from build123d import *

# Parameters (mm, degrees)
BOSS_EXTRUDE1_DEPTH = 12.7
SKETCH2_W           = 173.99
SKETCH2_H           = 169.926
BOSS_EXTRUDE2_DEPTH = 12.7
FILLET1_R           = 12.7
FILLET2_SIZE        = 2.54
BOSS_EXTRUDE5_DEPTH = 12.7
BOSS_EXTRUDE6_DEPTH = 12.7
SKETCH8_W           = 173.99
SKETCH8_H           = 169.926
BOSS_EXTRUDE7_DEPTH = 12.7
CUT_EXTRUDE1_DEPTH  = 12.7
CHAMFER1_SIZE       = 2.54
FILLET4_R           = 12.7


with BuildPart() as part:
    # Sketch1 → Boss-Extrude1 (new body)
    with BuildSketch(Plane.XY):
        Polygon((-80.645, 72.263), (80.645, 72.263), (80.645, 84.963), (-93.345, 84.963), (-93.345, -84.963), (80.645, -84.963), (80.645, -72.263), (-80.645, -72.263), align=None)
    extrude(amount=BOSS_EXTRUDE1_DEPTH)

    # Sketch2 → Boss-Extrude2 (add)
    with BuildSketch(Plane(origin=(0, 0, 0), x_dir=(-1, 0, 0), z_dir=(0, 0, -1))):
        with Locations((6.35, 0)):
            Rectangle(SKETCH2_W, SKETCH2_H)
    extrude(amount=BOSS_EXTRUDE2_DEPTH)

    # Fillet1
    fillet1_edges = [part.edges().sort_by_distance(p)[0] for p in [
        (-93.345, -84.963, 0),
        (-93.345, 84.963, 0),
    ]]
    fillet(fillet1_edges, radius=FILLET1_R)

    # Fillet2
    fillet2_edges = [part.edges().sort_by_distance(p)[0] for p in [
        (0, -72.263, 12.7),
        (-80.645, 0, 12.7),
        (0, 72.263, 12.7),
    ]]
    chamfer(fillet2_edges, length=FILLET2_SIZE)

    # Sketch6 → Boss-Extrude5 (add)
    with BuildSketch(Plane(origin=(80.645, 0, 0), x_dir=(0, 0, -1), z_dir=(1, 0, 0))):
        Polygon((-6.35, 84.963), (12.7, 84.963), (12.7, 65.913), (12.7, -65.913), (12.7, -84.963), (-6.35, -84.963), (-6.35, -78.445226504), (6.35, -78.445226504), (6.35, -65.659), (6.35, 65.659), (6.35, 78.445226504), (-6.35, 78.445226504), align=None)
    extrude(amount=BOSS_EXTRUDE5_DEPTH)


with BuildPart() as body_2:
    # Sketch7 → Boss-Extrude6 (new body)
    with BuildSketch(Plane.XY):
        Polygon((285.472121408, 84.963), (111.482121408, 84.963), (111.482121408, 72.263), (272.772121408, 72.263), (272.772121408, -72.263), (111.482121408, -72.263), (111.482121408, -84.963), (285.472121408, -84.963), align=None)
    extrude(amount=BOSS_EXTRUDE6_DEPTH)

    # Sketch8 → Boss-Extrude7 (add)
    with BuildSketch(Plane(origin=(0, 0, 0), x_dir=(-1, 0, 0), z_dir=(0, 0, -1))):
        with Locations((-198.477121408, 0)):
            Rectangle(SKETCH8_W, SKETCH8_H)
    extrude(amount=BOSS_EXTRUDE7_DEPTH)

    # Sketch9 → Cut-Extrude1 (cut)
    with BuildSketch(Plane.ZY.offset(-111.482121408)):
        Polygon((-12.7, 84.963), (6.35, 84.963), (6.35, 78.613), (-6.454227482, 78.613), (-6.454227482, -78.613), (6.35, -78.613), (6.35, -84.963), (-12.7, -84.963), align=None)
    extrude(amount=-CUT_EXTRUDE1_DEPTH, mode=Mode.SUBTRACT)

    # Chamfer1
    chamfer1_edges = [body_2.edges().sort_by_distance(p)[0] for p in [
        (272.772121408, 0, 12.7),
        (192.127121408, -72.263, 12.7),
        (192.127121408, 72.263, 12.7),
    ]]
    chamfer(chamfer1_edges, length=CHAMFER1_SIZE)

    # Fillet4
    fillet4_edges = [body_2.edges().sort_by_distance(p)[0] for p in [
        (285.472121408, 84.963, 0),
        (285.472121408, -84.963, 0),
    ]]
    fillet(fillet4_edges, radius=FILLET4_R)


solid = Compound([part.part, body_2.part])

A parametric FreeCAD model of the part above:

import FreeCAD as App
import Part
import Sketcher
Q = App.Units.Quantity


def edges_at(feature, points):
    """Names of the edges that pass closest to the given points."""
    edges = feature.Shape.Edges
    near = lambda p: min(range(len(edges)), key=lambda i: edges[i].distToShape(Part.Vertex(*p))[0])
    return sorted({f"Edge{near(p) + 1}" for p in points})


def add_polygon(sketch, points):
    """Adds a closed chain of lines whose ends are joined by coincident constraints."""
    first, n = sketch.GeometryCount, len(points)
    for a, b in zip(points, points[1:] + points[:1]):
        sketch.addGeometry(Part.LineSegment(App.Vector(*a, 0), App.Vector(*b, 0)), False)
    for i in range(n):
        sketch.addConstraint(Sketcher.Constraint("Coincident", first + i, 2, first + (i + 1) % n, 1))

doc = App.newDocument("Part")
params = doc.addObject("Spreadsheet::Sheet", "Params")
for row, (alias, value) in enumerate([
    ("sketch1_height", "0.5 in"),
    ("sketch1_width", "6.35 in"),
    ("sketch1_width2", "6.85 in"),
    ("sketch1_height2", "6.69 in"),
    ("pad1_length", "0.5 in"),
    ("sketch2_width", "6.85 in"),
    ("sketch2_height", "6.69 in"),
    ("pad2_length", "0.5 in"),
    ("fillet_radius", "0.5 in"),
    ("chamfer_size", "0.1 in"),
    ("sketch3_height", "0.5 in"),
    ("sketch3_width", "6.69 in"),
    ("sketch3_height2", "0.75 in"),
    ("pad3_length", "0.5 in"),
    ("sketch4_height", "0.5 in"),
    ("sketch4_width", "6.85 in"),
    ("sketch4_width2", "6.35 in"),
    ("sketch4_height2", "5.69 in"),
    ("pad4_length", "0.5 in"),
    ("sketch5_width", "6.85 in"),
    ("sketch5_height", "6.69 in"),
    ("pad5_length", "0.5 in"),
    ("sketch6_width", "6.69 in"),
    ("sketch6_width2", "0.25 in"),
    ("sketch6_height", "0.75 in"),
    ("pocket1_length", "0.5 in"),
    ("chamfer2_size", "0.1 in"),
    ("fillet2_radius", "0.5 in"),
], start=1):
    params.set(f"A{row}", alias)
    params.set(f"B{row}", "=" + value)
    params.setAlias(f"B{row}", alias)

body = doc.addObject("PartDesign::Body", "Body")

sketch1 = body.newObject("Sketcher::SketchObject", "Sketch")
sketch1.AttachmentSupport = (doc.getObject("XY_Plane"), [""])
sketch1.MapMode = "FlatFace"
add_polygon(sketch1, [(-80.645, 72.263), (80.645, 72.263), (80.645, 84.963), (-93.345, 84.963), (-93.345, -84.963), (80.645, -84.963), (80.645, -72.263), (-80.645, -72.263)])
sketch1.addConstraint(Sketcher.Constraint("Horizontal", 0))
sketch1.addConstraint(Sketcher.Constraint("Vertical", 1))
sketch1.addConstraint(Sketcher.Constraint("Horizontal", 2))
sketch1.addConstraint(Sketcher.Constraint("Vertical", 3))
sketch1.addConstraint(Sketcher.Constraint("Horizontal", 4))
sketch1.addConstraint(Sketcher.Constraint("Vertical", 5))
sketch1.addConstraint(Sketcher.Constraint("Horizontal", 6))
sketch1.addConstraint(Sketcher.Constraint("Vertical", 7))
sketch1.addConstraint(Sketcher.Constraint("Symmetric", 0, 2, 6, 2, -1, 1))
sketch1.addConstraint(Sketcher.Constraint("Symmetric", 1, 2, 4, 2, -1))
sketch1.addConstraint(Sketcher.Constraint("DistanceY", 1, 1, 1, 2, Q("0.5 in")))
sketch1.addConstraint(Sketcher.Constraint("DistanceX", 0, 1, 0, 2, Q("6.35 in")))
sketch1.addConstraint(Sketcher.Constraint("DistanceX", 2, 2, 2, 1, Q("6.85 in")))
sketch1.addConstraint(Sketcher.Constraint("DistanceY", 3, 2, 3, 1, Q("6.69 in")))
sketch1.setExpression("Constraints[18]", "Params.sketch1_height")
sketch1.setExpression("Constraints[19]", "Params.sketch1_width")
sketch1.setExpression("Constraints[20]", "Params.sketch1_width2")
sketch1.setExpression("Constraints[21]", "Params.sketch1_height2")
pad1 = body.newObject("PartDesign::Pad", "Pad")
pad1.Profile = sketch1
pad1.setExpression("Length", "Params.pad1_length")

sketch2 = body.newObject("Sketcher::SketchObject", "Sketch001")
sketch2.AttachmentSupport = (doc.getObject("XY_Plane"), [""])
sketch2.MapMode = "FlatFace"
add_polygon(sketch2, [(80.645, 84.963), (80.645, -84.963), (-93.345, -84.963), (-93.345, 84.963)])
sketch2.addConstraint(Sketcher.Constraint("Vertical", 0))
sketch2.addConstraint(Sketcher.Constraint("Horizontal", 1))
sketch2.addConstraint(Sketcher.Constraint("Vertical", 2))
sketch2.addConstraint(Sketcher.Constraint("Horizontal", 3))
sketch2.addConstraint(Sketcher.Constraint("DistanceX", 1, 2, 1, 1, Q("6.85 in")))
sketch2.addConstraint(Sketcher.Constraint("DistanceY", 0, 2, 0, 1, Q("6.69 in")))
sketch2.addConstraint(Sketcher.Constraint("DistanceX", -1, 1, 0, 2, Q("3.175 in")))
sketch2.addConstraint(Sketcher.Constraint("DistanceY", 0, 2, -1, 1, Q("3.345 in")))
sketch2.setExpression("Constraints[8]", "Params.sketch2_width")
sketch2.setExpression("Constraints[9]", "Params.sketch2_height")
pad2 = body.newObject("PartDesign::Pad", "Pad001")
pad2.Profile = sketch2
pad2.setExpression("Length", "Params.pad2_length")
pad2.Reversed = True
doc.recompute()

fillet = body.newObject("PartDesign::Fillet", "Fillet")
fillet.Base = (pad2, edges_at(pad2, [(-93.345, -84.963, 0), (-93.345, 84.963, 0)]))
fillet.setExpression("Radius", "Params.fillet_radius")
doc.recompute()

chamfer = body.newObject("PartDesign::Chamfer", "Chamfer")
chamfer.Base = (fillet, edges_at(fillet, [(0, -72.263, 12.7), (-80.645, 0, 12.7), (0, 72.263, 12.7)]))
chamfer.setExpression("Size", "Params.chamfer_size")

sketch3 = body.newObject("Sketcher::SketchObject", "Sketch002")
sketch3.AttachmentSupport = (doc.getObject("YZ_Plane"), [""])
sketch3.MapMode = "FlatFace"
sketch3.AttachmentOffset = App.Placement(App.Vector(0, 0, 3.175 * 25.4), App.Rotation())
add_polygon(sketch3, [(84.963, -12.7), (84.963, 6.35), (78.445227, 6.35), (78.445227, -6.35), (-78.445227, -6.35), (-78.445227, 6.35), (-84.963, 6.35), (-84.963, -12.7)])
sketch3.addConstraint(Sketcher.Constraint("Vertical", 0))
sketch3.addConstraint(Sketcher.Constraint("Horizontal", 1))
sketch3.addConstraint(Sketcher.Constraint("Vertical", 2))
sketch3.addConstraint(Sketcher.Constraint("Horizontal", 3))
sketch3.addConstraint(Sketcher.Constraint("Vertical", 4))
sketch3.addConstraint(Sketcher.Constraint("Horizontal", 5))
sketch3.addConstraint(Sketcher.Constraint("Vertical", 6))
sketch3.addConstraint(Sketcher.Constraint("Horizontal", 7))
sketch3.addConstraint(Sketcher.Constraint("Symmetric", 1, 2, 3, 2, -1, 1))
sketch3.addConstraint(Sketcher.Constraint("Symmetric", 0, 2, 5, 2, -2))
sketch3.addConstraint(Sketcher.Constraint("DistanceY", 2, 2, 2, 1, Q("0.5 in")))
sketch3.addConstraint(Sketcher.Constraint("DistanceX", 7, 1, 7, 2, Q("6.69 in")))
sketch3.addConstraint(Sketcher.Constraint("DistanceY", 0, 1, 0, 2, Q("0.75 in")))
sketch3.addConstraint(Sketcher.Constraint("DistanceX", 1, 2, 1, 1, Q("6.517773 mm")))
sketch3.setExpression("Constraints[18]", "Params.sketch3_height")
sketch3.setExpression("Constraints[19]", "Params.sketch3_width")
sketch3.setExpression("Constraints[20]", "Params.sketch3_height2")
pad3 = body.newObject("PartDesign::Pad", "Pad002")
pad3.Profile = sketch3
pad3.setExpression("Length", "Params.pad3_length")
body2 = doc.addObject("PartDesign::Body", "Body001")

sketch4 = body2.newObject("Sketcher::SketchObject", "Sketch003")
sketch4.AttachmentSupport = (doc.getObject("XY_Plane001"), [""])
sketch4.MapMode = "FlatFace"
add_polygon(sketch4, [(285.472121, 84.963), (111.482121, 84.963), (111.482121, 72.263), (272.772121, 72.263), (272.772121, -72.263), (111.482121, -72.263), (111.482121, -84.963), (285.472121, -84.963)])
sketch4.addConstraint(Sketcher.Constraint("Horizontal", 0))
sketch4.addConstraint(Sketcher.Constraint("Vertical", 1))
sketch4.addConstraint(Sketcher.Constraint("Horizontal", 2))
sketch4.addConstraint(Sketcher.Constraint("Vertical", 3))
sketch4.addConstraint(Sketcher.Constraint("Horizontal", 4))
sketch4.addConstraint(Sketcher.Constraint("Vertical", 5))
sketch4.addConstraint(Sketcher.Constraint("Horizontal", 6))
sketch4.addConstraint(Sketcher.Constraint("Vertical", 7))
sketch4.addConstraint(Sketcher.Constraint("Symmetric", 1, 2, 4, 2, -1))
sketch4.addConstraint(Sketcher.Constraint("Equal", 1, 5))
sketch4.addConstraint(Sketcher.Constraint("DistanceY", 1, 2, 1, 1, Q("0.5 in")))
sketch4.addConstraint(Sketcher.Constraint("DistanceX", 0, 2, 0, 1, Q("6.85 in")))
sketch4.addConstraint(Sketcher.Constraint("DistanceX", 2, 1, 2, 2, Q("6.35 in")))
sketch4.addConstraint(Sketcher.Constraint("DistanceY", 3, 2, 3, 1, Q("5.69 in")))
sketch4.addConstraint(Sketcher.Constraint("DistanceX", -1, 1, 0, 2, Q("111.482121 mm")))
sketch4.setExpression("Constraints[18]", "Params.sketch4_height")
sketch4.setExpression("Constraints[19]", "Params.sketch4_width")
sketch4.setExpression("Constraints[20]", "Params.sketch4_width2")
sketch4.setExpression("Constraints[21]", "Params.sketch4_height2")
pad4 = body2.newObject("PartDesign::Pad", "Pad003")
pad4.Profile = sketch4
pad4.setExpression("Length", "Params.pad4_length")

sketch5 = body2.newObject("Sketcher::SketchObject", "Sketch004")
sketch5.AttachmentSupport = (doc.getObject("XY_Plane001"), [""])
sketch5.MapMode = "FlatFace"
add_polygon(sketch5, [(285.472121, 84.963), (285.472121, -84.963), (111.482121, -84.963), (111.482121, 84.963)])
sketch5.addConstraint(Sketcher.Constraint("Vertical", 0))
sketch5.addConstraint(Sketcher.Constraint("Horizontal", 1))
sketch5.addConstraint(Sketcher.Constraint("Vertical", 2))
sketch5.addConstraint(Sketcher.Constraint("Horizontal", 3))
sketch5.addConstraint(Sketcher.Constraint("DistanceX", 1, 2, 1, 1, Q("6.85 in")))
sketch5.addConstraint(Sketcher.Constraint("DistanceY", 0, 2, 0, 1, Q("6.69 in")))
sketch5.addConstraint(Sketcher.Constraint("DistanceY", 0, 2, -1, 1, Q("3.345 in")))
sketch5.addConstraint(Sketcher.Constraint("DistanceX", -1, 1, 0, 2, Q("285.472121 mm")))
sketch5.setExpression("Constraints[8]", "Params.sketch5_width")
sketch5.setExpression("Constraints[9]", "Params.sketch5_height")
pad5 = body2.newObject("PartDesign::Pad", "Pad004")
pad5.Profile = sketch5
pad5.setExpression("Length", "Params.pad5_length")
pad5.Reversed = True

sketch6 = body2.newObject("Sketcher::SketchObject", "Sketch005")
sketch6.AttachmentSupport = (doc.getObject("YZ_Plane001"), [""])
sketch6.MapMode = "FlatFace"
sketch6.AttachmentOffset = App.Placement(App.Vector(0, 0, 111.482121), App.Rotation())
add_polygon(sketch6, [(84.963, 6.35), (84.963, -12.7), (-84.963, -12.7), (-84.963, 6.35), (-78.613, 6.35), (-78.613, -6.454227), (78.613, -6.454227), (78.613, 6.35)])
sketch6.addConstraint(Sketcher.Constraint("Vertical", 0))
sketch6.addConstraint(Sketcher.Constraint("Horizontal", 1))
sketch6.addConstraint(Sketcher.Constraint("Vertical", 2))
sketch6.addConstraint(Sketcher.Constraint("Horizontal", 3))
sketch6.addConstraint(Sketcher.Constraint("Vertical", 4))
sketch6.addConstraint(Sketcher.Constraint("Horizontal", 5))
sketch6.addConstraint(Sketcher.Constraint("Vertical", 6))
sketch6.addConstraint(Sketcher.Constraint("Horizontal", 7))
sketch6.addConstraint(Sketcher.Constraint("Symmetric", 3, 2, 6, 2, -2))
sketch6.addConstraint(Sketcher.Constraint("Equal", 3, 7))
sketch6.addConstraint(Sketcher.Constraint("DistanceX", 1, 2, 1, 1, Q("6.69 in")))
sketch6.addConstraint(Sketcher.Constraint("DistanceX", 3, 1, 3, 2, Q("0.25 in")))
sketch6.addConstraint(Sketcher.Constraint("DistanceY", 0, 2, 0, 1, Q("0.75 in")))
sketch6.addConstraint(Sketcher.Constraint("DistanceY", 0, 2, -1, 1, Q("0.5 in")))
sketch6.addConstraint(Sketcher.Constraint("DistanceY", 4, 2, 4, 1, Q("12.804227 mm")))
sketch6.setExpression("Constraints[18]", "Params.sketch6_width")
sketch6.setExpression("Constraints[19]", "Params.sketch6_width2")
sketch6.setExpression("Constraints[20]", "Params.sketch6_height")
pocket1 = body2.newObject("PartDesign::Pocket", "Pocket")
pocket1.Profile = sketch6
pocket1.setExpression("Length", "Params.pocket1_length")
pocket1.Reversed = True
doc.recompute()

chamfer2 = body2.newObject("PartDesign::Chamfer", "Chamfer001")
chamfer2.Base = (pocket1, edges_at(pocket1, [(272.772, 0, 12.7), (192.127, -72.263, 12.7), (192.127, 72.263, 12.7)]))
chamfer2.setExpression("Size", "Params.chamfer2_size")
doc.recompute()

fillet2 = body2.newObject("PartDesign::Fillet", "Fillet001")
fillet2.Base = (chamfer2, edges_at(chamfer2, [(285.472, 84.963, 0), (285.472, -84.963, 0)]))
fillet2.setExpression("Radius", "Params.fillet2_radius")

doc.recompute()
